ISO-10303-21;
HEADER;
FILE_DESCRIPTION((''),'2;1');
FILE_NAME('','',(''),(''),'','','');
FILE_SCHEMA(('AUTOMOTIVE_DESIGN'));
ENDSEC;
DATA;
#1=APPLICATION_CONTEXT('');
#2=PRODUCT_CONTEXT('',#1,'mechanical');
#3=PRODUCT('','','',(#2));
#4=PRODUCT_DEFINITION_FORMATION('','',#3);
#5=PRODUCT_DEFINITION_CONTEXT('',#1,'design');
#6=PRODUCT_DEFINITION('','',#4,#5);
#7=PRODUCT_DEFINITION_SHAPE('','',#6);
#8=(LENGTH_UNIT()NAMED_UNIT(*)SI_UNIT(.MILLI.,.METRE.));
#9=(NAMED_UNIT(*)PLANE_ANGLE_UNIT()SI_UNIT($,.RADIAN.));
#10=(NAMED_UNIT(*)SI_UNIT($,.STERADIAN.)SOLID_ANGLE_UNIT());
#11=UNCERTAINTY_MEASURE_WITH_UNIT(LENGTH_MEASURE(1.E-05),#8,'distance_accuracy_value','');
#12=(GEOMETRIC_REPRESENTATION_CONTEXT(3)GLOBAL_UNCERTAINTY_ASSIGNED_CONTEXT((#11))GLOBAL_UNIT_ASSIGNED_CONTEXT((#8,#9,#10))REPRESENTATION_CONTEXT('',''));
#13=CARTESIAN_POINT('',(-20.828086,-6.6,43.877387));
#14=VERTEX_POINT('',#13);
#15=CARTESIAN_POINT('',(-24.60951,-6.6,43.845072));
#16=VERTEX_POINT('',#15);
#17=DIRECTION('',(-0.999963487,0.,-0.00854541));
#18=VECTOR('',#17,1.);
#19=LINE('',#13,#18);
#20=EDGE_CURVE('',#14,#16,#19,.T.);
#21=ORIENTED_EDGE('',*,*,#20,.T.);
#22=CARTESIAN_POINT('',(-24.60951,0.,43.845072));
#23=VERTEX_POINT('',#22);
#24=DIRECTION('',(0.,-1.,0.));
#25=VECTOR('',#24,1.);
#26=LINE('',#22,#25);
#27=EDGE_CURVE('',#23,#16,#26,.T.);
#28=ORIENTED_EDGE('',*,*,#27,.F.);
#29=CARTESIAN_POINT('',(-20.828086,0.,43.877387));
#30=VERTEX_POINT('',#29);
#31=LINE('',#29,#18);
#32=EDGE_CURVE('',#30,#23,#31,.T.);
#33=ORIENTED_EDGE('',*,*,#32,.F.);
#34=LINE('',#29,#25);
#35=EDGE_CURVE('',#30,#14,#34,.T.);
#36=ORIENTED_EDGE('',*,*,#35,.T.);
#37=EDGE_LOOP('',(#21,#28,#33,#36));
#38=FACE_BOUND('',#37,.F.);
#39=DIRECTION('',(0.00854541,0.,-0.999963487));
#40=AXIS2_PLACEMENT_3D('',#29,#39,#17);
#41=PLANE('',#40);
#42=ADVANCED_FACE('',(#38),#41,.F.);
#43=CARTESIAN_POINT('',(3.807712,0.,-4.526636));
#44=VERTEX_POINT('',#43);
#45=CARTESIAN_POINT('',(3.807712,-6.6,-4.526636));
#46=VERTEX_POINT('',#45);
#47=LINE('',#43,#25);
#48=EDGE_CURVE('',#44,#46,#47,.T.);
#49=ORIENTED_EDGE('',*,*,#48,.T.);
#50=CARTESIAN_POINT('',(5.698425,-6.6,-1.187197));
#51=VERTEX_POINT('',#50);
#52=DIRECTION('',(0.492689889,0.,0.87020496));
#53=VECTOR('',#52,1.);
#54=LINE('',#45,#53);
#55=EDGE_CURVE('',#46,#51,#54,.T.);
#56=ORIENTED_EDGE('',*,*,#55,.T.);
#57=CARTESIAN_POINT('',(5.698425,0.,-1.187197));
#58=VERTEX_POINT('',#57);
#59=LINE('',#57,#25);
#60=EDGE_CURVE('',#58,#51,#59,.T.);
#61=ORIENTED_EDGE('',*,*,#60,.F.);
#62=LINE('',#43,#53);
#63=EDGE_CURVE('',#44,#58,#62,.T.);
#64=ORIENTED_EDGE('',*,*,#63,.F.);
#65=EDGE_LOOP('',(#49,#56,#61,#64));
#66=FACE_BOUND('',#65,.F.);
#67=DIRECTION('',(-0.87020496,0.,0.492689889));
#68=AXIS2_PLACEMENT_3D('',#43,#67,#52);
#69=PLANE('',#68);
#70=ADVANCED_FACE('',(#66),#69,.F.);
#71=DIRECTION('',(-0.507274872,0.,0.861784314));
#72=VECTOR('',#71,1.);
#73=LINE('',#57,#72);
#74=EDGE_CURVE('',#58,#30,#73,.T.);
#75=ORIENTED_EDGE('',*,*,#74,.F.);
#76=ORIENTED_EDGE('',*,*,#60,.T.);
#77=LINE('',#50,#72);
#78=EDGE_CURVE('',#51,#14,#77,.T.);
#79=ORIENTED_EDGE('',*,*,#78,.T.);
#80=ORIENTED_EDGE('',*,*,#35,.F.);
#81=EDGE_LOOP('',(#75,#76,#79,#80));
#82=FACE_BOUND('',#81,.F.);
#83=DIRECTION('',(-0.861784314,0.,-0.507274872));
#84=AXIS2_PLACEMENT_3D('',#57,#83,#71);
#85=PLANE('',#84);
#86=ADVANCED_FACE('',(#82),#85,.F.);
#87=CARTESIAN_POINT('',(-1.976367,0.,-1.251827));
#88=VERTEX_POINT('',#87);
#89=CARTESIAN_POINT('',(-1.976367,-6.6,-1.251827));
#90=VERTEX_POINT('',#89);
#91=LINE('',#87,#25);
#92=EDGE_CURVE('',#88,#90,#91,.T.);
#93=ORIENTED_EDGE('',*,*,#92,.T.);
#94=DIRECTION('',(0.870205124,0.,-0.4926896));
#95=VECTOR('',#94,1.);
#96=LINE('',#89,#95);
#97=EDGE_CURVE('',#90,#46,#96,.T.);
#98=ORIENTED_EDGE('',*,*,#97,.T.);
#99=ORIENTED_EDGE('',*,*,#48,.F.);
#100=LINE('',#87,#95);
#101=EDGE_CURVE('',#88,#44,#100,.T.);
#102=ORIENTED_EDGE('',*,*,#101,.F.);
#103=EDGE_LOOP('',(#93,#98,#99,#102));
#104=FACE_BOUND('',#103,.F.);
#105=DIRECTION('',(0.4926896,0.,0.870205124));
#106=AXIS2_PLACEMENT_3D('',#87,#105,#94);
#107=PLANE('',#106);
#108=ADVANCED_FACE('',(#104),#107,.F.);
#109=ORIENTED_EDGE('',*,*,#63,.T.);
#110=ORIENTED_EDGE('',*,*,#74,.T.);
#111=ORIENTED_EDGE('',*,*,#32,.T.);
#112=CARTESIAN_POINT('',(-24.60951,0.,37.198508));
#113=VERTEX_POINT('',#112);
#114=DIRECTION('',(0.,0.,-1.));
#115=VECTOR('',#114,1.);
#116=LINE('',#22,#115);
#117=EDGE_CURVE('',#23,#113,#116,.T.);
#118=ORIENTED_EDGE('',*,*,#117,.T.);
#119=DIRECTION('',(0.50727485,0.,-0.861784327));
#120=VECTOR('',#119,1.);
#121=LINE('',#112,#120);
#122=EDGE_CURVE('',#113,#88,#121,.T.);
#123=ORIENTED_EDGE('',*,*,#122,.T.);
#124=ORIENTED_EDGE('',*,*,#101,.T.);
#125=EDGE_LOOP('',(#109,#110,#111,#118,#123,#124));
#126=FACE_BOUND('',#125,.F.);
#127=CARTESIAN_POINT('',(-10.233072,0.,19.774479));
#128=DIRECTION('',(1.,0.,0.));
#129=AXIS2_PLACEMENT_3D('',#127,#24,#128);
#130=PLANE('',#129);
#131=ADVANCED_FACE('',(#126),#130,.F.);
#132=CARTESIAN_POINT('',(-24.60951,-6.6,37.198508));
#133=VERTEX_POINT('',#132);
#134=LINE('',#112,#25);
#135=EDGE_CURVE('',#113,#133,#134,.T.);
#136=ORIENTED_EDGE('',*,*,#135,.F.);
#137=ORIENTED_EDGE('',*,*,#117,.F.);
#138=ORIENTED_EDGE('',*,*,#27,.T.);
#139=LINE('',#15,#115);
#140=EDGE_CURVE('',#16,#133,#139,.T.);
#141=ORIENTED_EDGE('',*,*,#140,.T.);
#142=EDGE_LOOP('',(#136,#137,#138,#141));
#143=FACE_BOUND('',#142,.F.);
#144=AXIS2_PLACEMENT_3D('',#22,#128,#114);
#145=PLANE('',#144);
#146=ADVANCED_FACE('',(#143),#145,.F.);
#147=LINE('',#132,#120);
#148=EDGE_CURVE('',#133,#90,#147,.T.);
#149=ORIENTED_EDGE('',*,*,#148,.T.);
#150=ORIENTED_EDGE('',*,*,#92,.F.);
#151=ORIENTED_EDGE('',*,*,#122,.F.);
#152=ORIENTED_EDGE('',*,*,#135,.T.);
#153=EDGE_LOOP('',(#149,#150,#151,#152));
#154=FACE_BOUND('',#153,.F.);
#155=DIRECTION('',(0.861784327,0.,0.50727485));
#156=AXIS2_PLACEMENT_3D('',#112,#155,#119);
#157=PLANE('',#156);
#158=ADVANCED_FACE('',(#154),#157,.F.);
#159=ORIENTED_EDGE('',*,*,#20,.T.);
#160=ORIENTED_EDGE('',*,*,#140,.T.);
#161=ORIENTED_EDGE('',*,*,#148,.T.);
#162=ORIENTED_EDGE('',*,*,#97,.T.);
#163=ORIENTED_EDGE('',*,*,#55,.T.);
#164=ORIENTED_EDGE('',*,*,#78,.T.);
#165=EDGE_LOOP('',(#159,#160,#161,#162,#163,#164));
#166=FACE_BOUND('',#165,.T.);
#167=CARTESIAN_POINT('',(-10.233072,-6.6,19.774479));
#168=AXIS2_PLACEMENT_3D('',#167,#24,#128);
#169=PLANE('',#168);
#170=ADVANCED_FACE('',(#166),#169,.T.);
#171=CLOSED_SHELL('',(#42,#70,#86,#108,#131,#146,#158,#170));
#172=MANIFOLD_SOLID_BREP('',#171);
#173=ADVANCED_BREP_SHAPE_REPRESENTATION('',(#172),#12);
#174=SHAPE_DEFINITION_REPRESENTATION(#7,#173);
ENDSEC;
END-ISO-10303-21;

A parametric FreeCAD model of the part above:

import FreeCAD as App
import Part
import Sketcher


def add_polygon(sketch, points):
    """Adds a closed chain of lines whose ends are joined by coincident constraints."""
    first, n = sketch.GeometryCount, len(points)
    for a, b in zip(points, points[1:] + points[:1]):
        sketch.addGeometry(Part.LineSegment(App.Vector(*a, 0), App.Vector(*b, 0)), False)
    for i in range(n):
        sketch.addConstraint(Sketcher.Constraint("Coincident", first + i, 2, first + (i + 1) % n, 1))

doc = App.newDocument("Part")
body = doc.addObject("PartDesign::Body", "Body")

# Sketch on XZ plane
sketch1 = body.newObject("Sketcher::SketchObject", "Sketch")
sketch1.AttachmentSupport = (doc.getObject("XZ_Plane"), [""])
sketch1.MapMode = "FlatFace"
add_polygon(sketch1, [(-24.6, 37.2), (-2, -1.3), (3.8, -4.5), (5.7, -1.2), (-20.8, 43.9), (-24.6, 43.8)])  # lines 0-5
sketch1.addConstraint([
    Sketcher.Constraint("Vertical", 5),
    Sketcher.Constraint("Perpendicular", 1, 2),
    Sketcher.Constraint("Parallel", 0, 3),
    Sketcher.Constraint("Distance", 1, 6.6468),
    Sketcher.Constraint("DistanceY", 0, 2, 4, 2, 45.096899),
    Sketcher.Constraint("Distance", 0, 44.61712),
    Sketcher.Constraint("Distance", 2, 3.837532),
    Sketcher.Constraint("DistanceY", 5, 2, 5, 1, 6.646564),
    Sketcher.Constraint("DistanceX", -1, 1, 1, 2, 3.807712),
    Sketcher.Constraint("DistanceX", 4, 2, -1, 1, 24.60951),
    Sketcher.Constraint("DistanceX", 3, 2, 0, 2, 18.851719),
    Sketcher.Constraint("DistanceY", 0, 2, -1, 1, 1.251827),
])
pad1 = body.newObject("PartDesign::Pad", "Pad")
pad1.Profile = sketch1
pad1.Length = 6.6

doc.recompute()
